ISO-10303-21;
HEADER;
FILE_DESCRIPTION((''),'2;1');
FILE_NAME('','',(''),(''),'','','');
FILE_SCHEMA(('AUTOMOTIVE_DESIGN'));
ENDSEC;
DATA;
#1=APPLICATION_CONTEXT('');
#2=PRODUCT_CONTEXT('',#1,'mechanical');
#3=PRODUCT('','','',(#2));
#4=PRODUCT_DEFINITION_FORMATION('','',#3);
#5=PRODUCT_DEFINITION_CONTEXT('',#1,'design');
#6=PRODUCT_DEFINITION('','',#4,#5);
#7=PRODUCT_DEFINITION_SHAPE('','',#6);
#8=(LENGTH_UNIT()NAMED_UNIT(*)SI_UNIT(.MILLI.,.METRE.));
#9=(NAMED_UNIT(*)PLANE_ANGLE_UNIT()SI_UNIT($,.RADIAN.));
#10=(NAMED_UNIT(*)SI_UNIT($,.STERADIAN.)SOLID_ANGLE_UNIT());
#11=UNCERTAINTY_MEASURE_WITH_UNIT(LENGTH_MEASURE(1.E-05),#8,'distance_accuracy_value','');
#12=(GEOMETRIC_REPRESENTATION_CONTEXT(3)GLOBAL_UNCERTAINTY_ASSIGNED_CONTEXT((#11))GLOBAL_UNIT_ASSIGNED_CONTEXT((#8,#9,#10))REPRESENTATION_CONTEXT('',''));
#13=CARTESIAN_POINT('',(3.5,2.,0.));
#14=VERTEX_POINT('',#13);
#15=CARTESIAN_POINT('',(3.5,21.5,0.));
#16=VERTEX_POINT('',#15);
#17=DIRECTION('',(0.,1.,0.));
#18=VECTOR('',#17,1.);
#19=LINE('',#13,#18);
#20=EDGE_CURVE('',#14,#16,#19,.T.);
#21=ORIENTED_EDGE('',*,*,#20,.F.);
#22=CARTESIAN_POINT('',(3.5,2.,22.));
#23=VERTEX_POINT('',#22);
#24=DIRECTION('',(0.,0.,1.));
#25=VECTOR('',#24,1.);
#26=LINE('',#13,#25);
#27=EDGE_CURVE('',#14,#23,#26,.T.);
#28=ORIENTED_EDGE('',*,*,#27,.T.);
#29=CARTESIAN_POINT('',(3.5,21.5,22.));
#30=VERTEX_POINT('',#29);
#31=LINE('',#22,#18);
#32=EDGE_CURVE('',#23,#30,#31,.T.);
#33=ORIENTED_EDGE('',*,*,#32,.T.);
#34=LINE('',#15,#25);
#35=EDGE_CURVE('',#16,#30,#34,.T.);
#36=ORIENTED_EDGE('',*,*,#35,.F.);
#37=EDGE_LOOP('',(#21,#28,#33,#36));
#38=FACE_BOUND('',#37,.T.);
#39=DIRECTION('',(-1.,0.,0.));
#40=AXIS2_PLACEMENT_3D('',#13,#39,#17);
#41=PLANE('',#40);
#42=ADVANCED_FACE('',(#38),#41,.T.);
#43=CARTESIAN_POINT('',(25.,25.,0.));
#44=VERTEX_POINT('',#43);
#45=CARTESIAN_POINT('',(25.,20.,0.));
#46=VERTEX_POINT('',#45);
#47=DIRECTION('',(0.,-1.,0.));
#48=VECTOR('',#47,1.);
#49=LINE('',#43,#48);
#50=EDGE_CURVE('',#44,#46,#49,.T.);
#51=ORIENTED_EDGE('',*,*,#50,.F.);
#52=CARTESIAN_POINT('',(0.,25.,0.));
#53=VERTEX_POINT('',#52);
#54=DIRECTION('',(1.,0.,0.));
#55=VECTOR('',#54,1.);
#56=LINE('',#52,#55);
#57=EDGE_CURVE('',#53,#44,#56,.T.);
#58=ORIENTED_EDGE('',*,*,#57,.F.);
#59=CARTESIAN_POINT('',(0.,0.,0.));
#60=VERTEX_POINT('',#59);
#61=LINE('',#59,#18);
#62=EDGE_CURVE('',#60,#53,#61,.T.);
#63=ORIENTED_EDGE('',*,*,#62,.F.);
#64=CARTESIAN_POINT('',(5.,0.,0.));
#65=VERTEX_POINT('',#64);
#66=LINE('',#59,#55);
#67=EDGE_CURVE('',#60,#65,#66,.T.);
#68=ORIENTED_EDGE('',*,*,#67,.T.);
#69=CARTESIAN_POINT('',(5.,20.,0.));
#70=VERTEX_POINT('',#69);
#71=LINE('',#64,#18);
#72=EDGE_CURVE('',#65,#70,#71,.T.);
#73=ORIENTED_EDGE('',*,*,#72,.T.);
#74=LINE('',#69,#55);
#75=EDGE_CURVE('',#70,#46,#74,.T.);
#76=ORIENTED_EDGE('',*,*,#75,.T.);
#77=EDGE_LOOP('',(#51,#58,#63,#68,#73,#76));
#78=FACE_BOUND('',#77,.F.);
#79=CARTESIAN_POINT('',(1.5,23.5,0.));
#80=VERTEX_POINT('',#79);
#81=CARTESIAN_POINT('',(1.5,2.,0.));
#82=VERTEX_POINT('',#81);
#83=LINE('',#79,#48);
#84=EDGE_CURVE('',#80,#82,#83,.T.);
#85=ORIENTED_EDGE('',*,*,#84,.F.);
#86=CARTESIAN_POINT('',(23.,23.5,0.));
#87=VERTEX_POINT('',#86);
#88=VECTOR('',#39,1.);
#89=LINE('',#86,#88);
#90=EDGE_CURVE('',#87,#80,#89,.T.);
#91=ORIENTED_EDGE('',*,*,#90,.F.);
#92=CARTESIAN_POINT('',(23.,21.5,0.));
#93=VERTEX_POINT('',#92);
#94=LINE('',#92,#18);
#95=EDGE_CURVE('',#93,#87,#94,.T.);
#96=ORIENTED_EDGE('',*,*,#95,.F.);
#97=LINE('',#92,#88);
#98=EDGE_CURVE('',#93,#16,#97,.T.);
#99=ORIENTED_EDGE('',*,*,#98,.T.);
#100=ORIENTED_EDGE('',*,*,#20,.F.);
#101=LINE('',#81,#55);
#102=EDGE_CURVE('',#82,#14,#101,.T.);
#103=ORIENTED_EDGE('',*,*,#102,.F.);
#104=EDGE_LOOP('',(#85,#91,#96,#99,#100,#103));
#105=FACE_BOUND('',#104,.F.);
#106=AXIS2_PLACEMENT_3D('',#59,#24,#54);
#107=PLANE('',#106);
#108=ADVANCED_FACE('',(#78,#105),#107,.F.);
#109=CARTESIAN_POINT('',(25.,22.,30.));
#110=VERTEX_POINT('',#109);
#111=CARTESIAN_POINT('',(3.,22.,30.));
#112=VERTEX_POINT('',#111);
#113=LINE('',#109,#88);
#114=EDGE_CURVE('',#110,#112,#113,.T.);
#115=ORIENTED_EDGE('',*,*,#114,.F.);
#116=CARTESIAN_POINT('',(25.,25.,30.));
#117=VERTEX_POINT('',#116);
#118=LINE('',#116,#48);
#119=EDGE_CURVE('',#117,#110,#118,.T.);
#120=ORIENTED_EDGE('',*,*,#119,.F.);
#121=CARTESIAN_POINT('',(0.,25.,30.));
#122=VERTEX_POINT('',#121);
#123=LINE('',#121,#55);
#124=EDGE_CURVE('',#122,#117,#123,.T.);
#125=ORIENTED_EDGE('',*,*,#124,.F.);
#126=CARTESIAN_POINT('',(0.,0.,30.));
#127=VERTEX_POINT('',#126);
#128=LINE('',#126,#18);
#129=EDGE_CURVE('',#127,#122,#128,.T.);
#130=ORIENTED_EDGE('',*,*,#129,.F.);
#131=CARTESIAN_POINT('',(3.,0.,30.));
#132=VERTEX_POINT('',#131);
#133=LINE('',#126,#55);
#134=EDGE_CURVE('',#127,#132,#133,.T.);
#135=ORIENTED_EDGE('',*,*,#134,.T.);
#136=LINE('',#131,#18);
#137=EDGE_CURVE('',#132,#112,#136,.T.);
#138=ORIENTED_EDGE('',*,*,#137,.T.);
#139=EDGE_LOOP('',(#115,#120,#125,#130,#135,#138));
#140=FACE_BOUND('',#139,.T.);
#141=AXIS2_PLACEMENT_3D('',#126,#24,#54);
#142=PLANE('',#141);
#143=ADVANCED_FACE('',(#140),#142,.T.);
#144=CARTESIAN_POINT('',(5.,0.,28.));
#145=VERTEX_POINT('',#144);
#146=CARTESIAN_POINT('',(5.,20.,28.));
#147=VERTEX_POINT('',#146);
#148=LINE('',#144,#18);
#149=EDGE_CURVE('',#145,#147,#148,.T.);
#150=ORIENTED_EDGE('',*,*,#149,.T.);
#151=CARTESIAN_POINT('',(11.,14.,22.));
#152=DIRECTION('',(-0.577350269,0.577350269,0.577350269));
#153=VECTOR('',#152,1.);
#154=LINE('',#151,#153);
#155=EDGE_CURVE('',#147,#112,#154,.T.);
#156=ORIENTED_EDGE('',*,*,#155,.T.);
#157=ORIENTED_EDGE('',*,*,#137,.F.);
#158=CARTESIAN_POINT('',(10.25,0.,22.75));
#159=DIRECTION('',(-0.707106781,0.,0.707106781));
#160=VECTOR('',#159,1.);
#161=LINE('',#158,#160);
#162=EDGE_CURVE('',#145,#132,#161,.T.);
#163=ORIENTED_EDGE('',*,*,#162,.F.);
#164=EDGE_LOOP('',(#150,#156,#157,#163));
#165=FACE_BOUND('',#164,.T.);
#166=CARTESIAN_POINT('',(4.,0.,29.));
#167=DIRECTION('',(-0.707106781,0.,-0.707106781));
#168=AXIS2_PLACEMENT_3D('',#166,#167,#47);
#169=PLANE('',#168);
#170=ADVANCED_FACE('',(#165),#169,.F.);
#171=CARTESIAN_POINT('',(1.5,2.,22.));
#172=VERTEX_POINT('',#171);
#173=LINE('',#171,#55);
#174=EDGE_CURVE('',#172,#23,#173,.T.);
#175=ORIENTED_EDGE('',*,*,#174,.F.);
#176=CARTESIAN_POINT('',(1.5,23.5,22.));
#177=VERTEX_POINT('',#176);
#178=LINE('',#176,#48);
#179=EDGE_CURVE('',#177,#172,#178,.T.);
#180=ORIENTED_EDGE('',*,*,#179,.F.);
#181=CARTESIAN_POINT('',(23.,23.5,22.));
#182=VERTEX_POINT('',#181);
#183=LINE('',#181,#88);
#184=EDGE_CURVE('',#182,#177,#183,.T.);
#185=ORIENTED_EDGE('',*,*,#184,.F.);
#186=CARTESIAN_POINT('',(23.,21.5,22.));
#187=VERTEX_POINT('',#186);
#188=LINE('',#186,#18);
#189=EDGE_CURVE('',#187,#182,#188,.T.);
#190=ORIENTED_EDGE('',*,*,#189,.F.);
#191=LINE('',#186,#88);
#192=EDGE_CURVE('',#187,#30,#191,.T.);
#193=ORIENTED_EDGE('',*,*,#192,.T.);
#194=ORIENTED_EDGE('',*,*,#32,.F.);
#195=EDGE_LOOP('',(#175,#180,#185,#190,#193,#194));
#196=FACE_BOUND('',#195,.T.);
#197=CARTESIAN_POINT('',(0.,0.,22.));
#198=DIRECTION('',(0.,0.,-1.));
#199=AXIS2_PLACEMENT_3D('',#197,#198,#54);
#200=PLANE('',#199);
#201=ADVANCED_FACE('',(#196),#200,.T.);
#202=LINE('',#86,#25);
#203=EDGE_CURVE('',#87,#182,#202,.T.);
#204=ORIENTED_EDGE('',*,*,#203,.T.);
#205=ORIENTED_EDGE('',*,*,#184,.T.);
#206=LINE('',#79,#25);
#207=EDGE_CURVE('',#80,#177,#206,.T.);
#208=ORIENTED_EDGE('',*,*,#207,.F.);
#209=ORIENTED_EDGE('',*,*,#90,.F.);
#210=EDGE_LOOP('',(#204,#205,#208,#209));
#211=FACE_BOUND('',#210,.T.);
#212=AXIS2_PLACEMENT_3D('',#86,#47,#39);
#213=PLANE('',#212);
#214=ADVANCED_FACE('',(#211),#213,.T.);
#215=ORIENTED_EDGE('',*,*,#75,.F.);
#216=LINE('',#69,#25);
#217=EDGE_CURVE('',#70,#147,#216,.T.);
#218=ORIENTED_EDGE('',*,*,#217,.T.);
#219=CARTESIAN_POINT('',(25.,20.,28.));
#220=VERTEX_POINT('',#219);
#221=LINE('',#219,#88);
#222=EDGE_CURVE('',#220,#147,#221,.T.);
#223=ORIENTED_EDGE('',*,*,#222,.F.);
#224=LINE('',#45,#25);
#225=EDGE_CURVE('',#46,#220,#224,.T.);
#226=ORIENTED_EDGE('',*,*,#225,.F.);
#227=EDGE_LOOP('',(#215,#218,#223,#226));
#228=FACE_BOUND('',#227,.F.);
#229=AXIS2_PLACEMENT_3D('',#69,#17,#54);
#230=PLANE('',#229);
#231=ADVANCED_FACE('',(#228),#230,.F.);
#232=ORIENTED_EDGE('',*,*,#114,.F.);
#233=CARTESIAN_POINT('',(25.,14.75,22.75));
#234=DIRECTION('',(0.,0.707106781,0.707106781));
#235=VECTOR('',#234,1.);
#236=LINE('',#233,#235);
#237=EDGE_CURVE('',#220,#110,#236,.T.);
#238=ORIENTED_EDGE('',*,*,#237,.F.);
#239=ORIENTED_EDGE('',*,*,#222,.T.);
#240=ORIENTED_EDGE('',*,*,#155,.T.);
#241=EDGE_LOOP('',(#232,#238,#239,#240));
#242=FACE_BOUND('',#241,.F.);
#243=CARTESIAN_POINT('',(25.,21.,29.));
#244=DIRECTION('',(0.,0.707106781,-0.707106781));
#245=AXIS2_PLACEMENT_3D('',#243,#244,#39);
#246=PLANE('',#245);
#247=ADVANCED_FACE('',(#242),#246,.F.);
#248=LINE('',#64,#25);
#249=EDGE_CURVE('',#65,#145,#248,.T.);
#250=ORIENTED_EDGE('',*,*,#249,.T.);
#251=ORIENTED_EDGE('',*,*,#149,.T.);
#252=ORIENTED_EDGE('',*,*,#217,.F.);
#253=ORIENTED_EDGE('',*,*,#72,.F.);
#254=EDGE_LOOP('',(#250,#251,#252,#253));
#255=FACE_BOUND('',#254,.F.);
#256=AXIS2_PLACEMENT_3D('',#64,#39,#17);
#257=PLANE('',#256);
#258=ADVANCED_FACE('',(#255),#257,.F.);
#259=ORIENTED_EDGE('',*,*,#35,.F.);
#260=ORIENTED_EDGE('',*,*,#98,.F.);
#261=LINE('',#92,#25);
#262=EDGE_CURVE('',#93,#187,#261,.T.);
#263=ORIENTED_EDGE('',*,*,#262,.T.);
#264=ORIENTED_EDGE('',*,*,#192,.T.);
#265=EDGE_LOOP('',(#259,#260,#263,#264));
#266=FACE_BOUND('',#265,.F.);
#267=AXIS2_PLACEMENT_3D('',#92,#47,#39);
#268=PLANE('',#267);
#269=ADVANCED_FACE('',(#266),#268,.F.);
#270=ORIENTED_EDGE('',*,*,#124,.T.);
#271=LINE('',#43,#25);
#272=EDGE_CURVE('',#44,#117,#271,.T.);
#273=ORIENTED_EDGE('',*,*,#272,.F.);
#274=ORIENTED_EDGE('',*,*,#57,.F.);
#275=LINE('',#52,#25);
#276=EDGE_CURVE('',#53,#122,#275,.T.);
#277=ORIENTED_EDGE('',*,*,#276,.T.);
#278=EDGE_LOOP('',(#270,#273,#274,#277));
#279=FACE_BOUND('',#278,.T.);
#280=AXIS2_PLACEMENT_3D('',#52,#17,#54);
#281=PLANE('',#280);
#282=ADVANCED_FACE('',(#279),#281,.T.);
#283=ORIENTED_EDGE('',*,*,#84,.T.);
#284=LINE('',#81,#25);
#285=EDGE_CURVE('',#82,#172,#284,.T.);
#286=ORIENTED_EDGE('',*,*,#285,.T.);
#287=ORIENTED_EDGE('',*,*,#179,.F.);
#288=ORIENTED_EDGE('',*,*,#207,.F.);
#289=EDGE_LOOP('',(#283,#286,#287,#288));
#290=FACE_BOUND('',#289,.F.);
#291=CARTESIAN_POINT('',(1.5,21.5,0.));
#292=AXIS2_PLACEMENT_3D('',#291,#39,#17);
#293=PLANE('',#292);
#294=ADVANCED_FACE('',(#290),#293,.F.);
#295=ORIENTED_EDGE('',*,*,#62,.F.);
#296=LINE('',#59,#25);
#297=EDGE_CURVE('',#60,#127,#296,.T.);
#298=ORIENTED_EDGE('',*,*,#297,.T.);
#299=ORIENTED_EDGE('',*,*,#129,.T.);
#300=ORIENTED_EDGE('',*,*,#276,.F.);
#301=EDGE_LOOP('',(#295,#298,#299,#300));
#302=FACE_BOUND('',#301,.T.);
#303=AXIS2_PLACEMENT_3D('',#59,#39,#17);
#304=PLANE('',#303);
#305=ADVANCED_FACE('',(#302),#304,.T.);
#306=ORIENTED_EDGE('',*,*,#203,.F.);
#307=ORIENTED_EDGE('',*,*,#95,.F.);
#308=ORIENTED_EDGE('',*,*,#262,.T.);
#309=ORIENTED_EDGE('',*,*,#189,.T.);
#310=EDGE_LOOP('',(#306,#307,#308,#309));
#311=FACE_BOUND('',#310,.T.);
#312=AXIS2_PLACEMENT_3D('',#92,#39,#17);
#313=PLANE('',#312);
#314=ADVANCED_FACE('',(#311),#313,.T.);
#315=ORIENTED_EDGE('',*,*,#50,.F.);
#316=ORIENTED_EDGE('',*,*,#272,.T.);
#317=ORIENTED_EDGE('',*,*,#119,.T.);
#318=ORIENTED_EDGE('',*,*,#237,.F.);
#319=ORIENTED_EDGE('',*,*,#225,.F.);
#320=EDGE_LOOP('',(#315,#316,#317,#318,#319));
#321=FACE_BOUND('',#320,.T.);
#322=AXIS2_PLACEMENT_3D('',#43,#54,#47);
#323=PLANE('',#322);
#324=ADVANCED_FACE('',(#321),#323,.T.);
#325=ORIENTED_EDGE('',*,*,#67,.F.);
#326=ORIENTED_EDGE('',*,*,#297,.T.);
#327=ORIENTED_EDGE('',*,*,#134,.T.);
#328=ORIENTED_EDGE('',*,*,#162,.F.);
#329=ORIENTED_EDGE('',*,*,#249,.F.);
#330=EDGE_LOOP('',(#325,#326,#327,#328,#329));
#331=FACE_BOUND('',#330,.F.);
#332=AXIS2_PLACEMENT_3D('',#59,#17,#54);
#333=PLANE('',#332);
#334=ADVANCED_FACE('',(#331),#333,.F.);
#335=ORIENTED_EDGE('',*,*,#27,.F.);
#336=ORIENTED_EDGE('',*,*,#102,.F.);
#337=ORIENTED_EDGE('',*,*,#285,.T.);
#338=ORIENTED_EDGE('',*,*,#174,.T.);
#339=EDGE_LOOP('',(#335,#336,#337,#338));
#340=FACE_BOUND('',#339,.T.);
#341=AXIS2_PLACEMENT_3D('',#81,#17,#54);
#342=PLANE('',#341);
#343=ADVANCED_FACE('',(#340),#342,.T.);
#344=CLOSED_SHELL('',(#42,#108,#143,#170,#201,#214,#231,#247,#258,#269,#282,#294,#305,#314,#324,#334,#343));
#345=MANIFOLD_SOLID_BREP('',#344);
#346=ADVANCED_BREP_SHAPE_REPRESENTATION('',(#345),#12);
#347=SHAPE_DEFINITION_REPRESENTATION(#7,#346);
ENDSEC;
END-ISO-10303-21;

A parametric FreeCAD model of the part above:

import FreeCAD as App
import Part
import Sketcher

V = App.Vector


def edges_at(feature, points):
    """Names of the edges that pass closest to the given points."""
    edges = feature.Shape.Edges
    near = lambda p: min(range(len(edges)), key=lambda i: edges[i].distToShape(Part.Vertex(*p))[0])
    return sorted({f"Edge{near(p) + 1}" for p in points})


def add_polygon(sketch, points):
    """Adds a closed chain of lines whose ends are joined by coincident constraints."""
    first, n = sketch.GeometryCount, len(points)
    for a, b in zip(points, points[1:] + points[:1]):
        sketch.addGeometry(Part.LineSegment(App.Vector(*a, 0), App.Vector(*b, 0)), False)
    for i in range(n):
        sketch.addConstraint(Sketcher.Constraint("Coincident", first + i, 2, first + (i + 1) % n, 1))

doc = App.newDocument("Part")
body = doc.addObject("PartDesign::Body", "Body")

sketch1 = body.newObject("Sketcher::SketchObject", "Sketch")
sketch1.AttachmentSupport = (doc.getObject("XY_Plane"), [""])
sketch1.MapMode = "FlatFace"
add_polygon(sketch1, [(0, 25), (0, 0), (5, 0), (5, 20), (25, 20), (25, 25)])
sketch1.addConstraint(Sketcher.Constraint("Vertical", 0))
sketch1.addConstraint(Sketcher.Constraint("Horizontal", 1))
sketch1.addConstraint(Sketcher.Constraint("Vertical", 2))
sketch1.addConstraint(Sketcher.Constraint("Horizontal", 3))
sketch1.addConstraint(Sketcher.Constraint("Vertical", 4))
sketch1.addConstraint(Sketcher.Constraint("Horizontal", 5))
sketch1.addConstraint(Sketcher.Constraint("Coincident", 0, 2, -1, 1))
sketch1.addConstraint(Sketcher.Constraint("Equal", 5, 0))
sketch1.addConstraint(Sketcher.Constraint("Equal", 3, 2))
sketch1.addConstraint(Sketcher.Constraint("DistanceX", 1, 1, 1, 2, 5.0))
sketch1.addConstraint(Sketcher.Constraint("DistanceX", 5, 2, 5, 1, 25.0))
pad1 = body.newObject("PartDesign::Pad", "Pad")
pad1.Profile = sketch1
pad1.Length = 30
doc.recompute()

chamfer = body.newObject("PartDesign::Chamfer", "Chamfer")
chamfer.Base = (pad1, edges_at(pad1, [(5, 10, 30)]))
chamfer.Size = 2
doc.recompute()

chamfer2 = body.newObject("PartDesign::Chamfer", "Chamfer001")
chamfer2.Base = (chamfer, edges_at(chamfer, [(14, 20, 30)]))
chamfer2.Size = 2

sketch2 = body.newObject("Sketcher::SketchObject", "Sketch001")
sketch2.AttachmentSupport = (doc.getObject("XY_Plane"), [""])
sketch2.MapMode = "FlatFace"
add_polygon(sketch2, [(3.5, 2), (1.5, 2), (1.5, 23.5), (23, 23.5), (23, 21.5), (3.5, 21.5)])
sketch2.addConstraint(Sketcher.Constraint("Horizontal", 0))
sketch2.addConstraint(Sketcher.Constraint("Vertical", 1))
sketch2.addConstraint(Sketcher.Constraint("Horizontal", 2))
sketch2.addConstraint(Sketcher.Constraint("Vertical", 3))
sketch2.addConstraint(Sketcher.Constraint("Horizontal", 4))
sketch2.addConstraint(Sketcher.Constraint("Vertical", 5))
sketch2.addConstraint(Sketcher.Constraint("Equal", 2, 1))
sketch2.addConstraint(Sketcher.Constraint("Equal", 0, 3))
sketch2.addConstraint(Sketcher.Constraint("DistanceX", 0, 2, 0, 1, 2.0))
sketch2.addConstraint(Sketcher.Constraint("DistanceY", -1, 1, 0, 2, 2.0))
sketch2.addConstraint(Sketcher.Constraint("DistanceX", -1, 1, 0, 2, 1.5))
sketch2.addConstraint(Sketcher.Constraint("DistanceX", 2, 1, 2, 2, 21.5))
pocket1 = body.newObject("PartDesign::Pocket", "Pocket")
pocket1.Profile = sketch2
pocket1.Length = 22
pocket1.Reversed = True

doc.recompute()
